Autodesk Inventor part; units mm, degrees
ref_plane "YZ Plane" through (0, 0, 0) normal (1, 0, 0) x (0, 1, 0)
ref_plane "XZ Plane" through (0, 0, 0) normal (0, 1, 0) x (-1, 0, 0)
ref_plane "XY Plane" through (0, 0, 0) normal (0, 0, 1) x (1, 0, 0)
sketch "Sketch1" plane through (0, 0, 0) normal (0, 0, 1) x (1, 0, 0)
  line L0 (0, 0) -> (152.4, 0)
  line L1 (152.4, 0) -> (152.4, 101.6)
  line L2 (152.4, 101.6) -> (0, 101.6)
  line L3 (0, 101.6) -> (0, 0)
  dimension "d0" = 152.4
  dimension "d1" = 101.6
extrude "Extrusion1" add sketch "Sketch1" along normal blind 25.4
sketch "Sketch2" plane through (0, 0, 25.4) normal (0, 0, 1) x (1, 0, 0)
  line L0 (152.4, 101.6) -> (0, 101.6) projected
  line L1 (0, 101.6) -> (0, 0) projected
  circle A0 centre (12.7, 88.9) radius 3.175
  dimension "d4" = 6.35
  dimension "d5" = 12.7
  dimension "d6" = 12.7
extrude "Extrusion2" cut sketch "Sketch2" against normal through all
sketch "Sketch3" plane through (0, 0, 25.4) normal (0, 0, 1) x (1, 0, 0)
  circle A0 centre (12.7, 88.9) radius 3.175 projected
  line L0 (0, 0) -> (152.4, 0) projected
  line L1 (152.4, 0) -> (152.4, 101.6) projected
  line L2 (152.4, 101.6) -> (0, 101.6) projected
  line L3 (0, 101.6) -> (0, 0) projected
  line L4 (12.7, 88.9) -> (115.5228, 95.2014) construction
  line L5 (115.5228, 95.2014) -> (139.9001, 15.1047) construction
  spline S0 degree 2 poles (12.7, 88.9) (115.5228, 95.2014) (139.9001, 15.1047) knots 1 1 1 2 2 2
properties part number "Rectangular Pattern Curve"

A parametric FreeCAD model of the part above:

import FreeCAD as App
import Part
import Sketcher
Q = App.Units.Quantity


def add_polygon(sketch, points):
    """Adds a closed chain of lines whose ends are joined by coincident constraints."""
    first, n = sketch.GeometryCount, len(points)
    for a, b in zip(points, points[1:] + points[:1]):
        sketch.addGeometry(Part.LineSegment(App.Vector(*a, 0), App.Vector(*b, 0)), False)
    for i in range(n):
        sketch.addConstraint(Sketcher.Constraint("Coincident", first + i, 2, first + (i + 1) % n, 1))

doc = App.newDocument("Part")
body = doc.addObject("PartDesign::Body", "Body")

# Sketch on XY plane
sketch1 = body.newObject("Sketcher::SketchObject", "Sketch")
sketch1.AttachmentSupport = (doc.getObject("XY_Plane"), [""])
sketch1.MapMode = "FlatFace"
add_polygon(sketch1, [(0, 102), (0, 0), (152, 0), (152, 102)])  # lines 0-3
sketch1.addConstraint(Sketcher.Constraint("Vertical", 0))
sketch1.addConstraint(Sketcher.Constraint("Horizontal", 1))
sketch1.addConstraint(Sketcher.Constraint("Vertical", 2))
sketch1.addConstraint(Sketcher.Constraint("Horizontal", 3))
sketch1.addConstraint(Sketcher.Constraint("Coincident", 0, 2, -1, 1))
sketch1.addConstraint(Sketcher.Constraint("DistanceX", 1, 1, 1, 2, Q("6 in")))
sketch1.addConstraint(Sketcher.Constraint("DistanceY", 0, 2, 0, 1, Q("4 in")))
pad1 = body.newObject("PartDesign::Pad", "Pad")
pad1.Profile = sketch1
pad1.Length = Q("1 in")

# Sketch on XY plane
sketch2 = body.newObject("Sketcher::SketchObject", "Sketch001")
sketch2.AttachmentSupport = (doc.getObject("XY_Plane"), [""])
sketch2.MapMode = "FlatFace"
sketch2.AttachmentOffset = App.Placement(App.Vector(0, 0, 1 * 25.4), App.Rotation())
sketch2.addGeometry(Part.Circle(App.Vector(12.7, 88.9, 0), App.Vector(0, 0, 1), 3.2), False)
sketch2.addConstraint(Sketcher.Constraint("Diameter", 0, Q("0.25 in")))
sketch2.addConstraint(Sketcher.Constraint("DistanceX", -1, 1, 0, 3, Q("0.5 in")))
sketch2.addConstraint(Sketcher.Constraint("DistanceY", -1, 1, 0, 3, Q("3.5 in")))
pocket1 = body.newObject("PartDesign::Pocket", "Pocket")
pocket1.Profile = sketch2
pocket1.Type = "ThroughAll"

doc.recompute()
